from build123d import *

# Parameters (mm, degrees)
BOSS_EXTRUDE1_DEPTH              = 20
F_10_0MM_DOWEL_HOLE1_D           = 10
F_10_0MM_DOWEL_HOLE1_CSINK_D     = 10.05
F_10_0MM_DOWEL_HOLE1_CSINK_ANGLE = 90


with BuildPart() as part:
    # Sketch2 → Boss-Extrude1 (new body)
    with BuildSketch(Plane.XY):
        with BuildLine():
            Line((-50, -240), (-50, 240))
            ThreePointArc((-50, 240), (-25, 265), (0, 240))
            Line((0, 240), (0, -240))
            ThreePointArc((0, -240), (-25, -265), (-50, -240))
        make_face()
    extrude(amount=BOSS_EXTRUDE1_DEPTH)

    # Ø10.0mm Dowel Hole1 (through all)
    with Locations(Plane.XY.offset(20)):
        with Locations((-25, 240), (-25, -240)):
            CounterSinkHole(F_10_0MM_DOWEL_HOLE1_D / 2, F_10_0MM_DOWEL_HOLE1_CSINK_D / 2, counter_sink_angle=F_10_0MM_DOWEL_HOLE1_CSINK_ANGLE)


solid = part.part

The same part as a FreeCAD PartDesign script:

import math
import FreeCAD as App
import Part
import Sketcher

V = App.Vector

doc = App.newDocument("Part")
body = doc.addObject("PartDesign::Body", "Body")

sketch1 = doc.addObject("Sketcher::SketchObject", "Sketch")
body.addObject(sketch1)
sketch1.AttachmentSupport = (doc.XY_Plane, [""])
sketch1.MapMode = "FlatFace"
sketch1.addGeometry(Part.LineSegment(V(-50, 240, 0), V(-50, -240, 0)), False)
sketch1.addGeometry(Part.ArcOfCircle(Part.Circle(V(-25, -240, 0), V(0, 0, 1), 25), math.radians(180), math.radians(360)), False)
sketch1.addGeometry(Part.LineSegment(V(0, -240, 0), V(0, 240, 0)), False)
sketch1.addGeometry(Part.ArcOfCircle(Part.Circle(V(-25, 240, 0), V(0, 0, 1), 25), math.radians(0), math.radians(180)), False)
sketch1.addConstraint(Sketcher.Constraint("Tangent", 0, 2, 1, 1))
sketch1.addConstraint(Sketcher.Constraint("Tangent", 1, 2, 2, 1))
sketch1.addConstraint(Sketcher.Constraint("Tangent", 2, 2, 3, 1))
sketch1.addConstraint(Sketcher.Constraint("Tangent", 3, 2, 0, 1))
sketch1.addConstraint(Sketcher.Constraint("Vertical", 0))
sketch1.addConstraint(Sketcher.Constraint("Vertical", 2))
sketch1.addConstraint(Sketcher.Constraint("Symmetric", 1, 2, 2, 2, -1, 1))
sketch1.addConstraint(Sketcher.Constraint("Radius", 1, 25.0))
sketch1.addConstraint(Sketcher.Constraint("DistanceY", 0, 2, 0, 1, 480.0))
pad1 = doc.addObject("PartDesign::Pad", "Pad")
body.addObject(pad1)
pad1.Profile = sketch1
pad1.Length = 20

sketch2 = doc.addObject("Sketcher::SketchObject", "Sketch001")
body.addObject(sketch2)
sketch2.AttachmentSupport = (doc.XY_Plane, [""])
sketch2.MapMode = "FlatFace"
sketch2.AttachmentOffset = App.Placement(V(0, 0, 20), App.Rotation())
sketch2.addGeometry(Part.Circle(V(-25, 240, 0), V(0, 0, 1), 5), False)
sketch2.addGeometry(Part.Circle(V(-25, -240, 0), V(0, 0, 1), 5), False)
sketch2.addConstraint(Sketcher.Constraint("Equal", 0, 1))
sketch2.addConstraint(Sketcher.Constraint("Symmetric", 0, 3, 1, 3, -1))
sketch2.addConstraint(Sketcher.Constraint("Diameter", 0, 10.0))
sketch2.addConstraint(Sketcher.Constraint("DistanceX", 0, 3, -1, 1, 25.0))
sketch2.addConstraint(Sketcher.Constraint("DistanceY", -1, 1, 0, 3, 240.0))
doc.recompute()
hole = doc.addObject("PartDesign::Hole", "Hole")
body.addObject(hole)
hole.Profile = sketch2
hole.ThreadType = "None"
hole.Diameter = 10
hole.DepthType = "ThroughAll"
hole.HoleCutType = "Countersink"
hole.HoleCutDiameter = 10.05
hole.HoleCutCountersinkAngle = 90

doc.recompute()
